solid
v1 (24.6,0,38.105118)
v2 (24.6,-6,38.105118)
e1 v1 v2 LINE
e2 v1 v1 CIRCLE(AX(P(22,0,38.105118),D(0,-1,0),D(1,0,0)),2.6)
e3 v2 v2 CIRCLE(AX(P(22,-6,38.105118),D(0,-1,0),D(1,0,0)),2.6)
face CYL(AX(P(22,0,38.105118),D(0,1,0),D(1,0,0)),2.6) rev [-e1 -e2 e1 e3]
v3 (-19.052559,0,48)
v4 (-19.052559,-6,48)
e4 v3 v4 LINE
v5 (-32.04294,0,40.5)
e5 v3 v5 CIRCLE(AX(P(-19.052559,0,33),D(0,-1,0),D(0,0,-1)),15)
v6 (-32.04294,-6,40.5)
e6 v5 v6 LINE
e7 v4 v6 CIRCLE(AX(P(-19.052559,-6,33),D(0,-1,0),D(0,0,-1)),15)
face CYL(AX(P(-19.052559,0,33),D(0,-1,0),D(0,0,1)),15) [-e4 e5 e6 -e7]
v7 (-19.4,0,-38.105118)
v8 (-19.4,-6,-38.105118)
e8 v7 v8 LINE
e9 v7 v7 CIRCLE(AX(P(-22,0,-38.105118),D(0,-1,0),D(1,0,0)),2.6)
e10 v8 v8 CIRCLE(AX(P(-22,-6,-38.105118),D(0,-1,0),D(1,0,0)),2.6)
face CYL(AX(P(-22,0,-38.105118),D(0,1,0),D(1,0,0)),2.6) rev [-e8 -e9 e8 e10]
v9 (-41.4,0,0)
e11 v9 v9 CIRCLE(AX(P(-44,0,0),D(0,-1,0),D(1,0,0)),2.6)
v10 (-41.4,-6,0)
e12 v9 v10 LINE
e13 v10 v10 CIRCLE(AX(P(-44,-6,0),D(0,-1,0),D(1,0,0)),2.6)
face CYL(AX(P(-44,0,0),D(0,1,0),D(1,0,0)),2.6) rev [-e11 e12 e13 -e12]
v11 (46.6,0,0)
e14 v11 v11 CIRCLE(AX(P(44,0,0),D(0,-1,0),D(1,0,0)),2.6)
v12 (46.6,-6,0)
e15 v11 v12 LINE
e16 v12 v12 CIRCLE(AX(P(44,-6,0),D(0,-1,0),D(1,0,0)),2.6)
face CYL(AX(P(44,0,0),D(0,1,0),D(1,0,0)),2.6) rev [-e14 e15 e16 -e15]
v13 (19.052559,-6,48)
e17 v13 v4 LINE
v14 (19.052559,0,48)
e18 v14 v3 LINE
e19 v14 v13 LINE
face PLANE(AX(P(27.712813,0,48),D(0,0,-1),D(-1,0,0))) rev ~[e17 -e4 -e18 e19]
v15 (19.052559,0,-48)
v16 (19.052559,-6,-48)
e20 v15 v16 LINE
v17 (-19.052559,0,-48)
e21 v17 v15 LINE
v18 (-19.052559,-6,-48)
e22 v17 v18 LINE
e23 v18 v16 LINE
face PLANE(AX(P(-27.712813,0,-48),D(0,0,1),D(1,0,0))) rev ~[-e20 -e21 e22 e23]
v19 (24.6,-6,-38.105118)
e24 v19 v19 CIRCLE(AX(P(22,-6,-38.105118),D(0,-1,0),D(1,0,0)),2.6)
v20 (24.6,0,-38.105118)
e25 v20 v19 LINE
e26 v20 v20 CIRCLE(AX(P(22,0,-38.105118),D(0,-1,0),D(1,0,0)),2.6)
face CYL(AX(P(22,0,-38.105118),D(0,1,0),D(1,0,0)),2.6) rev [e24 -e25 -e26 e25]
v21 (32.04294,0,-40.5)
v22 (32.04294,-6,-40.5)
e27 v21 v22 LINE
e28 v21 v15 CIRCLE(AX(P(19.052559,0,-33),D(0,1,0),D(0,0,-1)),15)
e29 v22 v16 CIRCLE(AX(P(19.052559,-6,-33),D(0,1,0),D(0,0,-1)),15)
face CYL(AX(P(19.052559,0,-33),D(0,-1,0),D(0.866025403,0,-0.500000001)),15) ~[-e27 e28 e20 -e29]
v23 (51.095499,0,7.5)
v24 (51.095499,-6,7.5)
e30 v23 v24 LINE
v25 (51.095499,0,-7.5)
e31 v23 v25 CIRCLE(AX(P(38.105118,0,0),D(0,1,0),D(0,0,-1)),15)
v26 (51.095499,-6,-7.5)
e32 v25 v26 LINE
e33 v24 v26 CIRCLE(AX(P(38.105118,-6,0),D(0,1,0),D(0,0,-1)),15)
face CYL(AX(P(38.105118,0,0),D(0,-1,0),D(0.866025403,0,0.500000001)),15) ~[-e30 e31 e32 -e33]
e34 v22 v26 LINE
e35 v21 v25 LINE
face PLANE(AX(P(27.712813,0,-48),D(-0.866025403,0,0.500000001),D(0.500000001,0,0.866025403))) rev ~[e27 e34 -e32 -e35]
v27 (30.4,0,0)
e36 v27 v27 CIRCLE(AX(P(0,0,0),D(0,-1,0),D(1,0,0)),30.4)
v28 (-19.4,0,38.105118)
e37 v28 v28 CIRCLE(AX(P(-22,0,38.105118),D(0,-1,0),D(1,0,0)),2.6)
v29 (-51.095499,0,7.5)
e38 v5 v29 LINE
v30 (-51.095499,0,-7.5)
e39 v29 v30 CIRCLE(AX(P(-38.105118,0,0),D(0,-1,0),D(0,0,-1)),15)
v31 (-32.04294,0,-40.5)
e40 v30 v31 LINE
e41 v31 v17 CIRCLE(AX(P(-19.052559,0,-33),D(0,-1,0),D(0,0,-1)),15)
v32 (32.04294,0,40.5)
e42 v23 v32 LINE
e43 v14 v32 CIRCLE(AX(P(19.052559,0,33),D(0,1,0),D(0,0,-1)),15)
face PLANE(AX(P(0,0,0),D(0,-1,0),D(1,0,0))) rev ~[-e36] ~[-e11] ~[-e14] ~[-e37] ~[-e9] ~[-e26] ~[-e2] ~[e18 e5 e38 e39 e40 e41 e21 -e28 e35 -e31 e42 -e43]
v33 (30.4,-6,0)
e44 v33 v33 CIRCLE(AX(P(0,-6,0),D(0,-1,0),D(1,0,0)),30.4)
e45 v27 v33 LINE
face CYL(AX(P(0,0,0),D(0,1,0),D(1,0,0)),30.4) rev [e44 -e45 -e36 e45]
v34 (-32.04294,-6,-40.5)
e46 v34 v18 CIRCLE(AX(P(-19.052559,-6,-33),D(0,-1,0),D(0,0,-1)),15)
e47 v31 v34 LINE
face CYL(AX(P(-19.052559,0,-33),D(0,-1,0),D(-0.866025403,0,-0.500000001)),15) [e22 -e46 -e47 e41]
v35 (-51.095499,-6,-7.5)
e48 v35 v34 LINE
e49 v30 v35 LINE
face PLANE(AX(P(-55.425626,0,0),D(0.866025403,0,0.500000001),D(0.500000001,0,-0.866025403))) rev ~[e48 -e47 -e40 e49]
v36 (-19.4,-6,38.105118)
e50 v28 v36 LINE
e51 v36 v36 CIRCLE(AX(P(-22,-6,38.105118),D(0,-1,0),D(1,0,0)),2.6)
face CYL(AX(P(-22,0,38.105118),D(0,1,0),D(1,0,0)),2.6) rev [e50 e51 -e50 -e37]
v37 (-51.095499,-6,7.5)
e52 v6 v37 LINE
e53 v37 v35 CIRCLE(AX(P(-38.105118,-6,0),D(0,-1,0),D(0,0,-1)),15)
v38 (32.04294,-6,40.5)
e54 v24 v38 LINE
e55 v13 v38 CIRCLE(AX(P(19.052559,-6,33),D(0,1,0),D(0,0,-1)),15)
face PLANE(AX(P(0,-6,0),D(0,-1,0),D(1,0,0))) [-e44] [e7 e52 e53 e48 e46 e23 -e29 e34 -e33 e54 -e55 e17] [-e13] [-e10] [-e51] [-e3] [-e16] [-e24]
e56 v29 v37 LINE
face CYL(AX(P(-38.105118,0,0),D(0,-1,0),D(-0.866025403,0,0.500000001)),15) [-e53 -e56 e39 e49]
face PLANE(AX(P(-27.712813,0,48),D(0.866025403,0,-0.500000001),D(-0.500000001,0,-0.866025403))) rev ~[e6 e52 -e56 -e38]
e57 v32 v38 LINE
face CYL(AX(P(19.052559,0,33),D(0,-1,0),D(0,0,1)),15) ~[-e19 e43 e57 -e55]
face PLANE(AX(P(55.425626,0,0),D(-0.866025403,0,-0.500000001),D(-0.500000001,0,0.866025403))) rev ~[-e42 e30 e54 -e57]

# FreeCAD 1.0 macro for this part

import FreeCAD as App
import Part
import Sketcher
from FreeCAD import Vector
Q = App.Units.Quantity


def edges_at(feature, points):
    """Names of the edges that pass closest to the given points."""
    edges = feature.Shape.Edges
    near = lambda p: min(range(len(edges)), key=lambda i: edges[i].distToShape(Part.Vertex(*p))[0])
    return sorted({f"Edge{near(p) + 1}" for p in points})

doc = App.newDocument("Part")
params = doc.addObject("Spreadsheet::Sheet", "Params")
for row, (alias, value) in enumerate([
    ("sketch1_diameter", "5.2 mm"),
    ("sketch1_diameter2", "60.8 mm"),
    ("pad1_length", "6 mm"),
    ("fillet_radius", "15 mm"),
], start=1):
    params.set(f"A{row}", alias)
    params.set(f"B{row}", "=" + value)
    params.setAlias(f"B{row}", alias)

body = doc.addObject("PartDesign::Body", "Body")

# Sketch on XZ plane
sketch1 = body.newObject("Sketcher::SketchObject", "Sketch")
sketch1.AttachmentSupport = (doc.getObject("XZ_Plane"), [""])
sketch1.MapMode = "FlatFace"
sketch1.addGeometry([
    Part.LineSegment(Vector(27.7, 48, 0), Vector(-27.7, 48, 0)),  # 0
    Part.LineSegment(Vector(-27.7, 48, 0), Vector(-55.4, 0, 0)),  # 1
    Part.LineSegment(Vector(-55.4, 0, 0), Vector(-27.7, -48, 0)),  # 2
    Part.LineSegment(Vector(-27.7, -48, 0), Vector(27.7, -48, 0)),  # 3
    Part.LineSegment(Vector(27.7, -48, 0), Vector(55.4, 0, 0)),  # 4
    Part.LineSegment(Vector(55.4, 0, 0), Vector(27.7, 48, 0)),  # 5
    Part.Circle(Vector(-22, -38.1, 0), Vector(0, 0, 1), 2.6),  # 6
    Part.Circle(Vector(22, -38.1, 0), Vector(0, 0, 1), 2.6),  # 7
    Part.Circle(Vector(-44, 0, 0), Vector(0, 0, 1), 2.6),  # 8
    Part.Circle(Vector(-22, 38.1, 0), Vector(0, 0, 1), 2.6),  # 9
    Part.Circle(Vector(0, 0, 0), Vector(0, 0, 1), 30.4),  # 10
    Part.Circle(Vector(44, 0, 0), Vector(0, 0, 1), 2.6),  # 11
    Part.Circle(Vector(22, 38.1, 0), Vector(0, 0, 1), 2.6),  # 12
], False)
sketch1.addConstraint([
    Sketcher.Constraint("Coincident", 0, 2, 1, 1),
    Sketcher.Constraint("Coincident", 1, 2, 2, 1),
    Sketcher.Constraint("Coincident", 2, 2, 3, 1),
    Sketcher.Constraint("Coincident", 3, 2, 4, 1),
    Sketcher.Constraint("Coincident", 4, 2, 5, 1),
    Sketcher.Constraint("Coincident", 5, 2, 0, 1),
    Sketcher.Constraint("Horizontal", 0),
    Sketcher.Constraint("Horizontal", 3),
    Sketcher.Constraint("Coincident", 10, 3, -1, 1),
    Sketcher.Constraint("Equal", 6, 7),
    Sketcher.Constraint("Equal", 7, 8),
    Sketcher.Constraint("Equal", 8, 9),
    Sketcher.Constraint("Equal", 9, 11),
    Sketcher.Constraint("Equal", 11, 12),
    Sketcher.Constraint("Symmetric", 7, 3, 9, 3, -1, 1),
    Sketcher.Constraint("Symmetric", 8, 3, 11, 3, -1, 1),
    Sketcher.Constraint("Symmetric", 6, 3, 12, 3, -1, 1),
    Sketcher.Constraint("Symmetric", 0, 2, 3, 2, -1, 1),
    Sketcher.Constraint("Symmetric", 1, 2, 4, 2, -1, 1),
    Sketcher.Constraint("Symmetric", 6, 3, 7, 3, -2),
    Sketcher.Constraint("PointOnObject", 8, 3, -1),
    Sketcher.Constraint("PointOnObject", 1, 2, -1),
    Sketcher.Constraint("Parallel", 2, 5),
    Sketcher.Constraint("Vertical", 0, 2, 2, 2),
    Sketcher.Constraint("Diameter", 6, 5.2),
    Sketcher.Constraint("Diameter", 10, 60.8),
    Sketcher.Constraint("Angle", 1, Q("-120 deg")),
    Sketcher.Constraint("DistanceX", 6, 3, -1, 1, 22.0),
    Sketcher.Constraint("DistanceX", 8, 3, -1, 1, 44.0),
    Sketcher.Constraint("DistanceY", -1, 1, 0, 2, 48.0),
    Sketcher.Constraint("DistanceX", 0, 2, 0, 1, 55.425626),
    Sketcher.Constraint("DistanceY", 6, 3, -1, 1, 38.105118),
])
sketch1.setExpression("Constraints[24]", "Params.sketch1_diameter")
sketch1.setExpression("Constraints[25]", "Params.sketch1_diameter2")
pad1 = body.newObject("PartDesign::Pad", "Pad")
pad1.Profile = sketch1
pad1.setExpression("Length", "Params.pad1_length")
doc.recompute()

fillet = body.newObject("PartDesign::Fillet", "Fillet")
fillet.Base = (pad1, edges_at(pad1, [
    (-27.713, -3, 48),
    (-55.426, -3, 0),
    (-27.713, -3, -48),
    (27.713, -3, -48),
    (55.426, -3, 0),
    (27.713, -3, 48),
]))
fillet.setExpression("Radius", "Params.fillet_radius")

doc.recompute()
